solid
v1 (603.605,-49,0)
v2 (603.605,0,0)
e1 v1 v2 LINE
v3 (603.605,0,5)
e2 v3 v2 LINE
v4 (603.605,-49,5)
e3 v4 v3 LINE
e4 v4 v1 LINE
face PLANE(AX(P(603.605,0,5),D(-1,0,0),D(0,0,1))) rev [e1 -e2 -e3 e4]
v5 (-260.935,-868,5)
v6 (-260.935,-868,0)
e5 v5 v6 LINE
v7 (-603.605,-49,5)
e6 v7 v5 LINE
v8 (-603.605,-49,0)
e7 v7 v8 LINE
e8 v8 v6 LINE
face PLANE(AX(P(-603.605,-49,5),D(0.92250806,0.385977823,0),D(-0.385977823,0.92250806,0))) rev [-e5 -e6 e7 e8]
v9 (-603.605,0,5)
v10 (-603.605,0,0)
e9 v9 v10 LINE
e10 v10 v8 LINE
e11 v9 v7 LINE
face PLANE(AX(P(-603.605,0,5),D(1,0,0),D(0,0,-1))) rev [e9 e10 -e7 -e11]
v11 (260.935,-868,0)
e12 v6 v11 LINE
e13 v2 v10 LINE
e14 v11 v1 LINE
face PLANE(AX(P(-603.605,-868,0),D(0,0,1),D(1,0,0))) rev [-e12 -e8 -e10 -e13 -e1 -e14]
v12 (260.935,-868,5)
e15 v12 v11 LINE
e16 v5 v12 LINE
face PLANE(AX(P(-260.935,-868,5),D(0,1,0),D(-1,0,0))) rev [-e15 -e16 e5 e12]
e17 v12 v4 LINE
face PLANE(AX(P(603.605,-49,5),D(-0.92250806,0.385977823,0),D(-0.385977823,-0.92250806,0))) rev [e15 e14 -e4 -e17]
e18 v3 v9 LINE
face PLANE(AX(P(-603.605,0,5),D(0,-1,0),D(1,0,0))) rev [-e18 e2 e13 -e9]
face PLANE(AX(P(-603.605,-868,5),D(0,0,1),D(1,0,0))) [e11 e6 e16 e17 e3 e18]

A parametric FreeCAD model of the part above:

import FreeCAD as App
import Part
import Sketcher
Q = App.Units.Quantity

doc = App.newDocument("Part")
params = doc.addObject("Spreadsheet::Sheet", "Params")
for row, (alias, value) in enumerate([
    ("sketch1_height", "49 mm"),
    ("sketch1_width", "1207.21 mm"),
    ("sketch1_width2", "521.87 mm"),
    ("pad1_length", "5 mm"),
], start=1):
    params.set(f"A{row}", alias)
    params.set(f"B{row}", "=" + value)
    params.setAlias(f"B{row}", alias)

body = doc.addObject("PartDesign::Body", "Body")

sketch1 = doc.addObject("Sketcher::SketchObject", "Sketch")
body.addObject(sketch1)
sketch1.AttachmentSupport = (doc.XY_Plane, [""])
sketch1.MapMode = "FlatFace"
sketch1.addGeometry([
    Part.LineSegment(App.Vector(604, 0, 0), App.Vector(-604, 0, 0)),
    Part.LineSegment(App.Vector(-604, 0, 0), App.Vector(-604, -49, 0)),
    Part.LineSegment(App.Vector(-604, -49, 0), App.Vector(-261, -868, 0)),
    Part.LineSegment(App.Vector(-261, -868, 0), App.Vector(261, -868, 0)),
    Part.LineSegment(App.Vector(261, -868, 0), App.Vector(604, -49, 0)),
    Part.LineSegment(App.Vector(604, -49, 0), App.Vector(604, 0, 0)),
], False)
sketch1.addConstraint([
    Sketcher.Constraint("Coincident", 0, 2, 1, 1),
    Sketcher.Constraint("Coincident", 1, 2, 2, 1),
    Sketcher.Constraint("Coincident", 2, 2, 3, 1),
    Sketcher.Constraint("Coincident", 3, 2, 4, 1),
    Sketcher.Constraint("Coincident", 4, 2, 5, 1),
    Sketcher.Constraint("Coincident", 5, 2, 0, 1),
    Sketcher.Constraint("Horizontal", 0),
    Sketcher.Constraint("Vertical", 1),
    Sketcher.Constraint("Horizontal", 3),
    Sketcher.Constraint("Vertical", 5),
    Sketcher.Constraint("Symmetric", 0, 2, 5, 2, -1, 1),
    Sketcher.Constraint("Horizontal", 1, 2, 4, 2),
    Sketcher.Constraint("Equal", 2, 4),
    Sketcher.Constraint("DistanceY", 1, 2, 1, 1, Q("49 mm")),
    Sketcher.Constraint("DistanceY", 2, 2, -1, 1, Q("868 mm")),
    Sketcher.Constraint("DistanceX", 0, 2, 0, 1, Q("1207.21 mm")),
    Sketcher.Constraint("DistanceX", 3, 1, 3, 2, Q("521.87 mm")),
])
sketch1.setExpression("Constraints[13]", "Params.sketch1_height")
sketch1.setExpression("Constraints[15]", "Params.sketch1_width")
sketch1.setExpression("Constraints[16]", "Params.sketch1_width2")
pad1 = doc.addObject("PartDesign::Pad", "Pad")
body.addObject(pad1)
pad1.Profile = sketch1
pad1.setExpression("Length", "Params.pad1_length")

doc.recompute()
